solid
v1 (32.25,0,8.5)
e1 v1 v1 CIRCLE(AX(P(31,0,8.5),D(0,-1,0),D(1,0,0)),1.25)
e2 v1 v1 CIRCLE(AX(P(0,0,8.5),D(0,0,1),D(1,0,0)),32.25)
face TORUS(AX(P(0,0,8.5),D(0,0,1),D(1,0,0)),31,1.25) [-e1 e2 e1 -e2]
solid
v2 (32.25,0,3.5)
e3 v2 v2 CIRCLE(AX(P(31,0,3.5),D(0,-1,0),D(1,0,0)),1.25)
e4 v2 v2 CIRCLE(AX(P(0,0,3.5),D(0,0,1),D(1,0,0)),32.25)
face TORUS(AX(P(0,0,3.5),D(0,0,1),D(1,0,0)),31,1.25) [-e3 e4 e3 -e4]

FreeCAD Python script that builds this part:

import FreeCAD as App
import Part
import Sketcher

V = App.Vector
Q = App.Units.Quantity

doc = App.newDocument("Part")
body = doc.addObject("PartDesign::Body", "Body")

# Sketch on XZ plane
sketch1 = doc.addObject("Sketcher::SketchObject", "Sketch")
body.addObject(sketch1)
sketch1.AttachmentSupport = (doc.XZ_Plane, [""])
sketch1.MapMode = "FlatFace"
sketch1.addGeometry(Part.Circle(V(31, 8.5, 0), V(0, 0, 1), 1.2), False)
sketch1.addConstraint([
    Sketcher.Constraint("Diameter", 0, Q("2.5 mm")),
    Sketcher.Constraint("DistanceX", -1, 1, 0, 3, Q("31 mm")),
    Sketcher.Constraint("DistanceY", -1, 1, 0, 3, Q("8.5 mm")),
])
revolution = doc.addObject("PartDesign::Revolution", "Revolution")
body.addObject(revolution)
revolution.Profile = sketch1
revolution.ReferenceAxis = (sketch1, ["V_Axis"])
revolution.Angle = 360
body2 = doc.addObject("PartDesign::Body", "Body001")
body2.AllowCompound = True

# Sketch on XZ plane
sketch2 = doc.addObject("Sketcher::SketchObject", "Sketch001")
body2.addObject(sketch2)
sketch2.AttachmentSupport = (doc.getObject("XZ_Plane001"), [""])
sketch2.MapMode = "FlatFace"
sketch2.addGeometry(Part.Circle(V(31, 3.5, 0), V(0, 0, 1), 1.2), False)
sketch2.addConstraint([
    Sketcher.Constraint("Diameter", 0, Q("2.5 mm")),
    Sketcher.Constraint("DistanceX", -1, 1, 0, 3, Q("31 mm")),
    Sketcher.Constraint("DistanceY", -1, 1, 0, 3, Q("3.5 mm")),
])
revolution2 = doc.addObject("PartDesign::Revolution", "Revolution001")
body2.addObject(revolution2)
revolution2.Profile = sketch2
revolution2.ReferenceAxis = (sketch2, ["V_Axis"])
revolution2.Angle = 360
doc.recompute()

boolean = doc.addObject("PartDesign::Boolean", "Boolean")
body2.addObject(boolean)
boolean.Type = "Fuse"
boolean.addObjects([body])

doc.recompute()
